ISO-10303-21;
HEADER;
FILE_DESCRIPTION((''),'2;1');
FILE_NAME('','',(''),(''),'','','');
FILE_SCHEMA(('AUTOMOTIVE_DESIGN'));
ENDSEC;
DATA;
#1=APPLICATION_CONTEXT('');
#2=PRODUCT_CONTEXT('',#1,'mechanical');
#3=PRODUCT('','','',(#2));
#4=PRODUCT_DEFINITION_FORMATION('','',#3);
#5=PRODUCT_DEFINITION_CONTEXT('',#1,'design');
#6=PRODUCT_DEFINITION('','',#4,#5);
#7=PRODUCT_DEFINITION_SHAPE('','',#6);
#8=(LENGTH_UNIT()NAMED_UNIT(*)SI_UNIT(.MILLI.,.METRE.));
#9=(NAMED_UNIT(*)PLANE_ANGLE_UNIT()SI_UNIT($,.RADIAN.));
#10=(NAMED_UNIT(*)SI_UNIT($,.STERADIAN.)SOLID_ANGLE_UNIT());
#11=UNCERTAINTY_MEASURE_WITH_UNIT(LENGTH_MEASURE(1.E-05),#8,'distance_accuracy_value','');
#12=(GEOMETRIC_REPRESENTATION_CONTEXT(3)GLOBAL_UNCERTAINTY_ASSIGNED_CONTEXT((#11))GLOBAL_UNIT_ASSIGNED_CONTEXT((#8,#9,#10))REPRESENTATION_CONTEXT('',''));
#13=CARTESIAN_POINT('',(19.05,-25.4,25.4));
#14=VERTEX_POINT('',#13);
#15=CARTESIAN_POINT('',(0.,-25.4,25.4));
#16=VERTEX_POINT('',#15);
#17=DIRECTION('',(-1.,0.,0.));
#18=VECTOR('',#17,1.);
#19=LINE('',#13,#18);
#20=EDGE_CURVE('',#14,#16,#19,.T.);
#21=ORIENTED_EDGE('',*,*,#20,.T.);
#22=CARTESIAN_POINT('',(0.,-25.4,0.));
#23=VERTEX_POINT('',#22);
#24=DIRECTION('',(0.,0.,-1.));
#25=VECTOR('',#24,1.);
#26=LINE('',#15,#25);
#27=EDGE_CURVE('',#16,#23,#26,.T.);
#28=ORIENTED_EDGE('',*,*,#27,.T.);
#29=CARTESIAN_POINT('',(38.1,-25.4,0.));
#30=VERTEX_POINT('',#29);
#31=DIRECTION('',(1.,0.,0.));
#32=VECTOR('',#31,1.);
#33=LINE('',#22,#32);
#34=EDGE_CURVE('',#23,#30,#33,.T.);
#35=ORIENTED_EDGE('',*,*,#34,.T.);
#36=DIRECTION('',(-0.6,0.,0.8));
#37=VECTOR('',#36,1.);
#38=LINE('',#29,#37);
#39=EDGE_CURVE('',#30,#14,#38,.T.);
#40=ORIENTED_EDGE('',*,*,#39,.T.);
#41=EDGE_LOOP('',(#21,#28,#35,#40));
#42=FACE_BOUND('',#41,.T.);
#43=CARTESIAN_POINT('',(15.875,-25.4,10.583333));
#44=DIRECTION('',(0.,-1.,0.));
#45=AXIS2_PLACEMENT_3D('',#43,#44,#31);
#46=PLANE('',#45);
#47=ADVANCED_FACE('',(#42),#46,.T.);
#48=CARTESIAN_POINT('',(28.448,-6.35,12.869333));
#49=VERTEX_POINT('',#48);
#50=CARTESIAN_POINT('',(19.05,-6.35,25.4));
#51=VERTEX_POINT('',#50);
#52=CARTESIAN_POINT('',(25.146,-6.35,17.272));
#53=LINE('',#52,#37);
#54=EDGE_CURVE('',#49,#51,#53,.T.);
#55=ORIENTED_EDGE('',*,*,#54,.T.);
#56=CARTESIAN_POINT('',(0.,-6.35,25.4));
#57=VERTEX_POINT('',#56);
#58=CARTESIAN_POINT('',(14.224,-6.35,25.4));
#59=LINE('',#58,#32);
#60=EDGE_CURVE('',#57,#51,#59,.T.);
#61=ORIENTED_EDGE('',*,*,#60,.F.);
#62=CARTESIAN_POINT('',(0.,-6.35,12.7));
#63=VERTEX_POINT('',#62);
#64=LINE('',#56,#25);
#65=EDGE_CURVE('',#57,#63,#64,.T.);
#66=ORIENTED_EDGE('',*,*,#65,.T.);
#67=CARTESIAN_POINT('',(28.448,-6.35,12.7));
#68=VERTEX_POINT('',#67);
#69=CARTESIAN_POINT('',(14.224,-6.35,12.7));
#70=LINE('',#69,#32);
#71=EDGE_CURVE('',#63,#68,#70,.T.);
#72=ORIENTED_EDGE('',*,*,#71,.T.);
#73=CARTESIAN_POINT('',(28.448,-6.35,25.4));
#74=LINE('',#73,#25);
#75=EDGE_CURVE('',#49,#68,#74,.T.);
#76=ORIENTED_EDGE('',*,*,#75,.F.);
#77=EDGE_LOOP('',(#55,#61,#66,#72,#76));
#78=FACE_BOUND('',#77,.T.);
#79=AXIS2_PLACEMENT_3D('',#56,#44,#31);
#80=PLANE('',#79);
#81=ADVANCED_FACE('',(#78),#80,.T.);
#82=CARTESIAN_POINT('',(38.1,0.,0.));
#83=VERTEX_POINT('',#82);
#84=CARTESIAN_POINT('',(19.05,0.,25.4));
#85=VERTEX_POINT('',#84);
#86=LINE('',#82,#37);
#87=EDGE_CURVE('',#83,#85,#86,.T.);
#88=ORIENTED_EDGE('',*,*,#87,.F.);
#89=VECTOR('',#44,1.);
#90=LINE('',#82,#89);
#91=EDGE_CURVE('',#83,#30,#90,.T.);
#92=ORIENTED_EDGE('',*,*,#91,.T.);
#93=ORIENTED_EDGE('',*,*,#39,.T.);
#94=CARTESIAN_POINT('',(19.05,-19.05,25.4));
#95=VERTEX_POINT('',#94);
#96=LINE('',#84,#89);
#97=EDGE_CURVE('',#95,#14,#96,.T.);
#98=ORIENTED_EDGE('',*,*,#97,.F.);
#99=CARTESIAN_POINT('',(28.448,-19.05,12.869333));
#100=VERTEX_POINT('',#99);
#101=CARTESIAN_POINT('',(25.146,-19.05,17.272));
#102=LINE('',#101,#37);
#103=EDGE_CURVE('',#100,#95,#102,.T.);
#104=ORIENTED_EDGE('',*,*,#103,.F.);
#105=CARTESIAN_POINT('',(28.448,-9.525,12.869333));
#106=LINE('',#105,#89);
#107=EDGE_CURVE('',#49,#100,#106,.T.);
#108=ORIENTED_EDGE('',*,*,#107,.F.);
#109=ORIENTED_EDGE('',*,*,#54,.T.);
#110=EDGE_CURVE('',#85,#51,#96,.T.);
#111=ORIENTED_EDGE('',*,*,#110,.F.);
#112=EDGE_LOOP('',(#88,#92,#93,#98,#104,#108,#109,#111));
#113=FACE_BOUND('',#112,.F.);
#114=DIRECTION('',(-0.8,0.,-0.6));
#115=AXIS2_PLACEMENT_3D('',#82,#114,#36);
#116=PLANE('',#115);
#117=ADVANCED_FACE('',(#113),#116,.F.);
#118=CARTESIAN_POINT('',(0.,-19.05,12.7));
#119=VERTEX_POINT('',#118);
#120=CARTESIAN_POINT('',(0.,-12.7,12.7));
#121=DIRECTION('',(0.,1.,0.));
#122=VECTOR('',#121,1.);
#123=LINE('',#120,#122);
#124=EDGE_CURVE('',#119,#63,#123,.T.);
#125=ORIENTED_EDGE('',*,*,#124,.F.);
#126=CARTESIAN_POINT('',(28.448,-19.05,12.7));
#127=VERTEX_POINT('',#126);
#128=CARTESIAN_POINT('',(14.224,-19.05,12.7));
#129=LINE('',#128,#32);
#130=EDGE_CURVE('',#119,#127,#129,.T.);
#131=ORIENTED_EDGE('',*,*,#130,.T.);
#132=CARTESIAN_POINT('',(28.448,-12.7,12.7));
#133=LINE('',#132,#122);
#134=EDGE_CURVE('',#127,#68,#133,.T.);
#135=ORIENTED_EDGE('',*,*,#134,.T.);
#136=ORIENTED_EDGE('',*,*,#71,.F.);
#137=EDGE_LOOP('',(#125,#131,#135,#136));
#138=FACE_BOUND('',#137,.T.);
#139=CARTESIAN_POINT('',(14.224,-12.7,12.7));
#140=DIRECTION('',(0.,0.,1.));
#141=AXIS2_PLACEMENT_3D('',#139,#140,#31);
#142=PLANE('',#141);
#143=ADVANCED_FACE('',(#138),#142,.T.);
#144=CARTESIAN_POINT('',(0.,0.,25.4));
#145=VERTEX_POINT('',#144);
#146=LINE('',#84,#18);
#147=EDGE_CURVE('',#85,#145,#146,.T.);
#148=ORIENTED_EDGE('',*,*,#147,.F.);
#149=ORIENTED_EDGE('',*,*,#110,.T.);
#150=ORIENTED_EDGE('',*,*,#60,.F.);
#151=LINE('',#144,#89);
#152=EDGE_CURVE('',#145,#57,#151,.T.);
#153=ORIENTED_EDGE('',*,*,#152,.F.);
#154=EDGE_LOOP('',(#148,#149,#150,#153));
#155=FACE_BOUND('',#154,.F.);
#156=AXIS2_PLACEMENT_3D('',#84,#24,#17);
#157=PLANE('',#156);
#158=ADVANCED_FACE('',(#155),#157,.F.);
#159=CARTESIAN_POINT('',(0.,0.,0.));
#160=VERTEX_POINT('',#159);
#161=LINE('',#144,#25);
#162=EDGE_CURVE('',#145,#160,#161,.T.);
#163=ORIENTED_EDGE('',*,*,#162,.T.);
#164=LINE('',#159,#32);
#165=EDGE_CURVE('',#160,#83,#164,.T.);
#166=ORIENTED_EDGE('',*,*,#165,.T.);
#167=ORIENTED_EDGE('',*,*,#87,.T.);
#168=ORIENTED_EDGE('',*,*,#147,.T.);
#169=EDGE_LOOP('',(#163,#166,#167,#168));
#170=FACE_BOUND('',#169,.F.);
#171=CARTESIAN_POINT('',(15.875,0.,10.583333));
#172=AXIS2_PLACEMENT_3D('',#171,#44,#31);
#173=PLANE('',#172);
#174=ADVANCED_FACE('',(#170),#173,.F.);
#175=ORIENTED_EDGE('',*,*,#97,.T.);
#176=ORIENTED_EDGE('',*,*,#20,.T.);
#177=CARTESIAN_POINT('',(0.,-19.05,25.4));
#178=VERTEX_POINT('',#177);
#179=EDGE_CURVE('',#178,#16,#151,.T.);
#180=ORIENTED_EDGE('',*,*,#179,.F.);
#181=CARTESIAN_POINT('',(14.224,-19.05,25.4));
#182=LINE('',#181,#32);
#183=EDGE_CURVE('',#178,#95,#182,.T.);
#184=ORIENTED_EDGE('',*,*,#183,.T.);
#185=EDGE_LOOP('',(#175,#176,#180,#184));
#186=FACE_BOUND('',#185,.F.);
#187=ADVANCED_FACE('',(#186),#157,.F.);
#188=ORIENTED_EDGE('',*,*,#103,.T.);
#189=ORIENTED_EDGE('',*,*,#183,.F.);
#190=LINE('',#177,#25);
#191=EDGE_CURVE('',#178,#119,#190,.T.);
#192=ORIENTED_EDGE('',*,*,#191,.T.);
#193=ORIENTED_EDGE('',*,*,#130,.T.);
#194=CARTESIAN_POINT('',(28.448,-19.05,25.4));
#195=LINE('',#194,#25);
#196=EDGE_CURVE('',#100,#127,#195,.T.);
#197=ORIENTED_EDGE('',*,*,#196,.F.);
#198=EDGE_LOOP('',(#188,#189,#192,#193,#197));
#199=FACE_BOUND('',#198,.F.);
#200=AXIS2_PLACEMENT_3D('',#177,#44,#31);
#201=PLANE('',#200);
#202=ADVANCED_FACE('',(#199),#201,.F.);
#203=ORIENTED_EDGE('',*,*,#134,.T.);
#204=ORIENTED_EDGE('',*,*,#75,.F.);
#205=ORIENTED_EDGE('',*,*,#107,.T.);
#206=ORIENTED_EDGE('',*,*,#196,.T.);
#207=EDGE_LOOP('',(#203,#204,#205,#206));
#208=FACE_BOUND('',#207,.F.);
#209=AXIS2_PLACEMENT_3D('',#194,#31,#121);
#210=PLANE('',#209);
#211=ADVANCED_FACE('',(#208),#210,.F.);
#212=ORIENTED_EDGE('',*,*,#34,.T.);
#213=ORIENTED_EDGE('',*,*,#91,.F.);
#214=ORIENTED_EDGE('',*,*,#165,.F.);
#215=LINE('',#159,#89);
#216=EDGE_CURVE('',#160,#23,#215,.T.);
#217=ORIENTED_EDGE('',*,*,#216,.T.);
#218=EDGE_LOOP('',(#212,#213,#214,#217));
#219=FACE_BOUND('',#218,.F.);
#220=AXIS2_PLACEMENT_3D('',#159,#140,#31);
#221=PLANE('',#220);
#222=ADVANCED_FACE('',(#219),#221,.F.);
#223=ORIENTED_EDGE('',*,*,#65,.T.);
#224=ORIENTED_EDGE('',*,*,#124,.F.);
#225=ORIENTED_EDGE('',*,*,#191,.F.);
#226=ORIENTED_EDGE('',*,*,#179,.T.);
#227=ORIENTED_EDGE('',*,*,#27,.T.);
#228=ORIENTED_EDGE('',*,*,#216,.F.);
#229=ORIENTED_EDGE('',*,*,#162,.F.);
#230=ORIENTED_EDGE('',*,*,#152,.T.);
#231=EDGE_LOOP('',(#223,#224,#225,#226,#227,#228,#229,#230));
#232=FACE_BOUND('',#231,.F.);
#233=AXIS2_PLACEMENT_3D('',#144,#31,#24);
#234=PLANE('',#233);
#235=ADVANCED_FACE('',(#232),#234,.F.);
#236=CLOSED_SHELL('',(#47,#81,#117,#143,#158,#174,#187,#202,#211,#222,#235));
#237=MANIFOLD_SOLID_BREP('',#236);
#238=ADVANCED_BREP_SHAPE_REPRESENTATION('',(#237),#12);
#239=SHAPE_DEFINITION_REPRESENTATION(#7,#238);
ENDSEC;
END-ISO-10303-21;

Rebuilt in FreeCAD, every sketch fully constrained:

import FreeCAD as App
import Part
import Sketcher
from FreeCAD import Vector
Q = App.Units.Quantity


def add_polygon(sketch, points):
    """Adds a closed chain of lines whose ends are joined by coincident constraints."""
    first, n = sketch.GeometryCount, len(points)
    for a, b in zip(points, points[1:] + points[:1]):
        sketch.addGeometry(Part.LineSegment(App.Vector(*a, 0), App.Vector(*b, 0)), False)
    for i in range(n):
        sketch.addConstraint(Sketcher.Constraint("Coincident", first + i, 2, first + (i + 1) % n, 1))

doc = App.newDocument("Part")
body = doc.addObject("PartDesign::Body", "Body")

# Sketch on XZ plane
sketch1 = body.newObject("Sketcher::SketchObject", "Sketch")
sketch1.AttachmentSupport = (doc.getObject("XZ_Plane"), [""])
sketch1.MapMode = "FlatFace"
add_polygon(sketch1, [(0, 25), (0, 0), (38, 0), (19, 25)])  # lines 0-3
sketch1.addConstraint([
    Sketcher.Constraint("Vertical", 0),
    Sketcher.Constraint("Horizontal", 1),
    Sketcher.Constraint("Horizontal", 3),
    Sketcher.Constraint("Coincident", 0, 2, -1, 1),
    Sketcher.Constraint("DistanceY", 0, 2, 0, 1, Q("1 in")),
    Sketcher.Constraint("DistanceX", 1, 1, 1, 2, Q("1.5 in")),
    Sketcher.Constraint("DistanceX", 3, 2, 3, 1, Q("0.75 in")),
])
pad1 = body.newObject("PartDesign::Pad", "Pad")
pad1.Profile = sketch1
pad1.Length = Q("1 in")

# Sketch on XY plane
sketch2 = body.newObject("Sketcher::SketchObject", "Sketch001")
sketch2.AttachmentSupport = (doc.getObject("XY_Plane"), [""])
sketch2.MapMode = "FlatFace"
sketch2.AttachmentOffset = App.Placement(Vector(0, 0, 1 * 25.4), App.Rotation())
add_polygon(sketch2, [(0, -6), (0, -19), (28, -19), (28, -6)])  # lines 0-3
sketch2.addConstraint([
    Sketcher.Constraint("Vertical", 0),
    Sketcher.Constraint("Horizontal", 1),
    Sketcher.Constraint("Vertical", 2),
    Sketcher.Constraint("Horizontal", 3),
    Sketcher.Constraint("PointOnObject", 0, 2, -2),
    Sketcher.Constraint("DistanceY", 0, 2, 0, 1, Q("0.5 in")),
    Sketcher.Constraint("DistanceX", 1, 1, 1, 2, Q("1.12 in")),
    Sketcher.Constraint("DistanceY", 0, 2, -1, 1, Q("0.75 in")),
])
pocket1 = body.newObject("PartDesign::Pocket", "Pocket")
pocket1.Profile = sketch2
pocket1.Length = Q("0.5 in")

doc.recompute()
